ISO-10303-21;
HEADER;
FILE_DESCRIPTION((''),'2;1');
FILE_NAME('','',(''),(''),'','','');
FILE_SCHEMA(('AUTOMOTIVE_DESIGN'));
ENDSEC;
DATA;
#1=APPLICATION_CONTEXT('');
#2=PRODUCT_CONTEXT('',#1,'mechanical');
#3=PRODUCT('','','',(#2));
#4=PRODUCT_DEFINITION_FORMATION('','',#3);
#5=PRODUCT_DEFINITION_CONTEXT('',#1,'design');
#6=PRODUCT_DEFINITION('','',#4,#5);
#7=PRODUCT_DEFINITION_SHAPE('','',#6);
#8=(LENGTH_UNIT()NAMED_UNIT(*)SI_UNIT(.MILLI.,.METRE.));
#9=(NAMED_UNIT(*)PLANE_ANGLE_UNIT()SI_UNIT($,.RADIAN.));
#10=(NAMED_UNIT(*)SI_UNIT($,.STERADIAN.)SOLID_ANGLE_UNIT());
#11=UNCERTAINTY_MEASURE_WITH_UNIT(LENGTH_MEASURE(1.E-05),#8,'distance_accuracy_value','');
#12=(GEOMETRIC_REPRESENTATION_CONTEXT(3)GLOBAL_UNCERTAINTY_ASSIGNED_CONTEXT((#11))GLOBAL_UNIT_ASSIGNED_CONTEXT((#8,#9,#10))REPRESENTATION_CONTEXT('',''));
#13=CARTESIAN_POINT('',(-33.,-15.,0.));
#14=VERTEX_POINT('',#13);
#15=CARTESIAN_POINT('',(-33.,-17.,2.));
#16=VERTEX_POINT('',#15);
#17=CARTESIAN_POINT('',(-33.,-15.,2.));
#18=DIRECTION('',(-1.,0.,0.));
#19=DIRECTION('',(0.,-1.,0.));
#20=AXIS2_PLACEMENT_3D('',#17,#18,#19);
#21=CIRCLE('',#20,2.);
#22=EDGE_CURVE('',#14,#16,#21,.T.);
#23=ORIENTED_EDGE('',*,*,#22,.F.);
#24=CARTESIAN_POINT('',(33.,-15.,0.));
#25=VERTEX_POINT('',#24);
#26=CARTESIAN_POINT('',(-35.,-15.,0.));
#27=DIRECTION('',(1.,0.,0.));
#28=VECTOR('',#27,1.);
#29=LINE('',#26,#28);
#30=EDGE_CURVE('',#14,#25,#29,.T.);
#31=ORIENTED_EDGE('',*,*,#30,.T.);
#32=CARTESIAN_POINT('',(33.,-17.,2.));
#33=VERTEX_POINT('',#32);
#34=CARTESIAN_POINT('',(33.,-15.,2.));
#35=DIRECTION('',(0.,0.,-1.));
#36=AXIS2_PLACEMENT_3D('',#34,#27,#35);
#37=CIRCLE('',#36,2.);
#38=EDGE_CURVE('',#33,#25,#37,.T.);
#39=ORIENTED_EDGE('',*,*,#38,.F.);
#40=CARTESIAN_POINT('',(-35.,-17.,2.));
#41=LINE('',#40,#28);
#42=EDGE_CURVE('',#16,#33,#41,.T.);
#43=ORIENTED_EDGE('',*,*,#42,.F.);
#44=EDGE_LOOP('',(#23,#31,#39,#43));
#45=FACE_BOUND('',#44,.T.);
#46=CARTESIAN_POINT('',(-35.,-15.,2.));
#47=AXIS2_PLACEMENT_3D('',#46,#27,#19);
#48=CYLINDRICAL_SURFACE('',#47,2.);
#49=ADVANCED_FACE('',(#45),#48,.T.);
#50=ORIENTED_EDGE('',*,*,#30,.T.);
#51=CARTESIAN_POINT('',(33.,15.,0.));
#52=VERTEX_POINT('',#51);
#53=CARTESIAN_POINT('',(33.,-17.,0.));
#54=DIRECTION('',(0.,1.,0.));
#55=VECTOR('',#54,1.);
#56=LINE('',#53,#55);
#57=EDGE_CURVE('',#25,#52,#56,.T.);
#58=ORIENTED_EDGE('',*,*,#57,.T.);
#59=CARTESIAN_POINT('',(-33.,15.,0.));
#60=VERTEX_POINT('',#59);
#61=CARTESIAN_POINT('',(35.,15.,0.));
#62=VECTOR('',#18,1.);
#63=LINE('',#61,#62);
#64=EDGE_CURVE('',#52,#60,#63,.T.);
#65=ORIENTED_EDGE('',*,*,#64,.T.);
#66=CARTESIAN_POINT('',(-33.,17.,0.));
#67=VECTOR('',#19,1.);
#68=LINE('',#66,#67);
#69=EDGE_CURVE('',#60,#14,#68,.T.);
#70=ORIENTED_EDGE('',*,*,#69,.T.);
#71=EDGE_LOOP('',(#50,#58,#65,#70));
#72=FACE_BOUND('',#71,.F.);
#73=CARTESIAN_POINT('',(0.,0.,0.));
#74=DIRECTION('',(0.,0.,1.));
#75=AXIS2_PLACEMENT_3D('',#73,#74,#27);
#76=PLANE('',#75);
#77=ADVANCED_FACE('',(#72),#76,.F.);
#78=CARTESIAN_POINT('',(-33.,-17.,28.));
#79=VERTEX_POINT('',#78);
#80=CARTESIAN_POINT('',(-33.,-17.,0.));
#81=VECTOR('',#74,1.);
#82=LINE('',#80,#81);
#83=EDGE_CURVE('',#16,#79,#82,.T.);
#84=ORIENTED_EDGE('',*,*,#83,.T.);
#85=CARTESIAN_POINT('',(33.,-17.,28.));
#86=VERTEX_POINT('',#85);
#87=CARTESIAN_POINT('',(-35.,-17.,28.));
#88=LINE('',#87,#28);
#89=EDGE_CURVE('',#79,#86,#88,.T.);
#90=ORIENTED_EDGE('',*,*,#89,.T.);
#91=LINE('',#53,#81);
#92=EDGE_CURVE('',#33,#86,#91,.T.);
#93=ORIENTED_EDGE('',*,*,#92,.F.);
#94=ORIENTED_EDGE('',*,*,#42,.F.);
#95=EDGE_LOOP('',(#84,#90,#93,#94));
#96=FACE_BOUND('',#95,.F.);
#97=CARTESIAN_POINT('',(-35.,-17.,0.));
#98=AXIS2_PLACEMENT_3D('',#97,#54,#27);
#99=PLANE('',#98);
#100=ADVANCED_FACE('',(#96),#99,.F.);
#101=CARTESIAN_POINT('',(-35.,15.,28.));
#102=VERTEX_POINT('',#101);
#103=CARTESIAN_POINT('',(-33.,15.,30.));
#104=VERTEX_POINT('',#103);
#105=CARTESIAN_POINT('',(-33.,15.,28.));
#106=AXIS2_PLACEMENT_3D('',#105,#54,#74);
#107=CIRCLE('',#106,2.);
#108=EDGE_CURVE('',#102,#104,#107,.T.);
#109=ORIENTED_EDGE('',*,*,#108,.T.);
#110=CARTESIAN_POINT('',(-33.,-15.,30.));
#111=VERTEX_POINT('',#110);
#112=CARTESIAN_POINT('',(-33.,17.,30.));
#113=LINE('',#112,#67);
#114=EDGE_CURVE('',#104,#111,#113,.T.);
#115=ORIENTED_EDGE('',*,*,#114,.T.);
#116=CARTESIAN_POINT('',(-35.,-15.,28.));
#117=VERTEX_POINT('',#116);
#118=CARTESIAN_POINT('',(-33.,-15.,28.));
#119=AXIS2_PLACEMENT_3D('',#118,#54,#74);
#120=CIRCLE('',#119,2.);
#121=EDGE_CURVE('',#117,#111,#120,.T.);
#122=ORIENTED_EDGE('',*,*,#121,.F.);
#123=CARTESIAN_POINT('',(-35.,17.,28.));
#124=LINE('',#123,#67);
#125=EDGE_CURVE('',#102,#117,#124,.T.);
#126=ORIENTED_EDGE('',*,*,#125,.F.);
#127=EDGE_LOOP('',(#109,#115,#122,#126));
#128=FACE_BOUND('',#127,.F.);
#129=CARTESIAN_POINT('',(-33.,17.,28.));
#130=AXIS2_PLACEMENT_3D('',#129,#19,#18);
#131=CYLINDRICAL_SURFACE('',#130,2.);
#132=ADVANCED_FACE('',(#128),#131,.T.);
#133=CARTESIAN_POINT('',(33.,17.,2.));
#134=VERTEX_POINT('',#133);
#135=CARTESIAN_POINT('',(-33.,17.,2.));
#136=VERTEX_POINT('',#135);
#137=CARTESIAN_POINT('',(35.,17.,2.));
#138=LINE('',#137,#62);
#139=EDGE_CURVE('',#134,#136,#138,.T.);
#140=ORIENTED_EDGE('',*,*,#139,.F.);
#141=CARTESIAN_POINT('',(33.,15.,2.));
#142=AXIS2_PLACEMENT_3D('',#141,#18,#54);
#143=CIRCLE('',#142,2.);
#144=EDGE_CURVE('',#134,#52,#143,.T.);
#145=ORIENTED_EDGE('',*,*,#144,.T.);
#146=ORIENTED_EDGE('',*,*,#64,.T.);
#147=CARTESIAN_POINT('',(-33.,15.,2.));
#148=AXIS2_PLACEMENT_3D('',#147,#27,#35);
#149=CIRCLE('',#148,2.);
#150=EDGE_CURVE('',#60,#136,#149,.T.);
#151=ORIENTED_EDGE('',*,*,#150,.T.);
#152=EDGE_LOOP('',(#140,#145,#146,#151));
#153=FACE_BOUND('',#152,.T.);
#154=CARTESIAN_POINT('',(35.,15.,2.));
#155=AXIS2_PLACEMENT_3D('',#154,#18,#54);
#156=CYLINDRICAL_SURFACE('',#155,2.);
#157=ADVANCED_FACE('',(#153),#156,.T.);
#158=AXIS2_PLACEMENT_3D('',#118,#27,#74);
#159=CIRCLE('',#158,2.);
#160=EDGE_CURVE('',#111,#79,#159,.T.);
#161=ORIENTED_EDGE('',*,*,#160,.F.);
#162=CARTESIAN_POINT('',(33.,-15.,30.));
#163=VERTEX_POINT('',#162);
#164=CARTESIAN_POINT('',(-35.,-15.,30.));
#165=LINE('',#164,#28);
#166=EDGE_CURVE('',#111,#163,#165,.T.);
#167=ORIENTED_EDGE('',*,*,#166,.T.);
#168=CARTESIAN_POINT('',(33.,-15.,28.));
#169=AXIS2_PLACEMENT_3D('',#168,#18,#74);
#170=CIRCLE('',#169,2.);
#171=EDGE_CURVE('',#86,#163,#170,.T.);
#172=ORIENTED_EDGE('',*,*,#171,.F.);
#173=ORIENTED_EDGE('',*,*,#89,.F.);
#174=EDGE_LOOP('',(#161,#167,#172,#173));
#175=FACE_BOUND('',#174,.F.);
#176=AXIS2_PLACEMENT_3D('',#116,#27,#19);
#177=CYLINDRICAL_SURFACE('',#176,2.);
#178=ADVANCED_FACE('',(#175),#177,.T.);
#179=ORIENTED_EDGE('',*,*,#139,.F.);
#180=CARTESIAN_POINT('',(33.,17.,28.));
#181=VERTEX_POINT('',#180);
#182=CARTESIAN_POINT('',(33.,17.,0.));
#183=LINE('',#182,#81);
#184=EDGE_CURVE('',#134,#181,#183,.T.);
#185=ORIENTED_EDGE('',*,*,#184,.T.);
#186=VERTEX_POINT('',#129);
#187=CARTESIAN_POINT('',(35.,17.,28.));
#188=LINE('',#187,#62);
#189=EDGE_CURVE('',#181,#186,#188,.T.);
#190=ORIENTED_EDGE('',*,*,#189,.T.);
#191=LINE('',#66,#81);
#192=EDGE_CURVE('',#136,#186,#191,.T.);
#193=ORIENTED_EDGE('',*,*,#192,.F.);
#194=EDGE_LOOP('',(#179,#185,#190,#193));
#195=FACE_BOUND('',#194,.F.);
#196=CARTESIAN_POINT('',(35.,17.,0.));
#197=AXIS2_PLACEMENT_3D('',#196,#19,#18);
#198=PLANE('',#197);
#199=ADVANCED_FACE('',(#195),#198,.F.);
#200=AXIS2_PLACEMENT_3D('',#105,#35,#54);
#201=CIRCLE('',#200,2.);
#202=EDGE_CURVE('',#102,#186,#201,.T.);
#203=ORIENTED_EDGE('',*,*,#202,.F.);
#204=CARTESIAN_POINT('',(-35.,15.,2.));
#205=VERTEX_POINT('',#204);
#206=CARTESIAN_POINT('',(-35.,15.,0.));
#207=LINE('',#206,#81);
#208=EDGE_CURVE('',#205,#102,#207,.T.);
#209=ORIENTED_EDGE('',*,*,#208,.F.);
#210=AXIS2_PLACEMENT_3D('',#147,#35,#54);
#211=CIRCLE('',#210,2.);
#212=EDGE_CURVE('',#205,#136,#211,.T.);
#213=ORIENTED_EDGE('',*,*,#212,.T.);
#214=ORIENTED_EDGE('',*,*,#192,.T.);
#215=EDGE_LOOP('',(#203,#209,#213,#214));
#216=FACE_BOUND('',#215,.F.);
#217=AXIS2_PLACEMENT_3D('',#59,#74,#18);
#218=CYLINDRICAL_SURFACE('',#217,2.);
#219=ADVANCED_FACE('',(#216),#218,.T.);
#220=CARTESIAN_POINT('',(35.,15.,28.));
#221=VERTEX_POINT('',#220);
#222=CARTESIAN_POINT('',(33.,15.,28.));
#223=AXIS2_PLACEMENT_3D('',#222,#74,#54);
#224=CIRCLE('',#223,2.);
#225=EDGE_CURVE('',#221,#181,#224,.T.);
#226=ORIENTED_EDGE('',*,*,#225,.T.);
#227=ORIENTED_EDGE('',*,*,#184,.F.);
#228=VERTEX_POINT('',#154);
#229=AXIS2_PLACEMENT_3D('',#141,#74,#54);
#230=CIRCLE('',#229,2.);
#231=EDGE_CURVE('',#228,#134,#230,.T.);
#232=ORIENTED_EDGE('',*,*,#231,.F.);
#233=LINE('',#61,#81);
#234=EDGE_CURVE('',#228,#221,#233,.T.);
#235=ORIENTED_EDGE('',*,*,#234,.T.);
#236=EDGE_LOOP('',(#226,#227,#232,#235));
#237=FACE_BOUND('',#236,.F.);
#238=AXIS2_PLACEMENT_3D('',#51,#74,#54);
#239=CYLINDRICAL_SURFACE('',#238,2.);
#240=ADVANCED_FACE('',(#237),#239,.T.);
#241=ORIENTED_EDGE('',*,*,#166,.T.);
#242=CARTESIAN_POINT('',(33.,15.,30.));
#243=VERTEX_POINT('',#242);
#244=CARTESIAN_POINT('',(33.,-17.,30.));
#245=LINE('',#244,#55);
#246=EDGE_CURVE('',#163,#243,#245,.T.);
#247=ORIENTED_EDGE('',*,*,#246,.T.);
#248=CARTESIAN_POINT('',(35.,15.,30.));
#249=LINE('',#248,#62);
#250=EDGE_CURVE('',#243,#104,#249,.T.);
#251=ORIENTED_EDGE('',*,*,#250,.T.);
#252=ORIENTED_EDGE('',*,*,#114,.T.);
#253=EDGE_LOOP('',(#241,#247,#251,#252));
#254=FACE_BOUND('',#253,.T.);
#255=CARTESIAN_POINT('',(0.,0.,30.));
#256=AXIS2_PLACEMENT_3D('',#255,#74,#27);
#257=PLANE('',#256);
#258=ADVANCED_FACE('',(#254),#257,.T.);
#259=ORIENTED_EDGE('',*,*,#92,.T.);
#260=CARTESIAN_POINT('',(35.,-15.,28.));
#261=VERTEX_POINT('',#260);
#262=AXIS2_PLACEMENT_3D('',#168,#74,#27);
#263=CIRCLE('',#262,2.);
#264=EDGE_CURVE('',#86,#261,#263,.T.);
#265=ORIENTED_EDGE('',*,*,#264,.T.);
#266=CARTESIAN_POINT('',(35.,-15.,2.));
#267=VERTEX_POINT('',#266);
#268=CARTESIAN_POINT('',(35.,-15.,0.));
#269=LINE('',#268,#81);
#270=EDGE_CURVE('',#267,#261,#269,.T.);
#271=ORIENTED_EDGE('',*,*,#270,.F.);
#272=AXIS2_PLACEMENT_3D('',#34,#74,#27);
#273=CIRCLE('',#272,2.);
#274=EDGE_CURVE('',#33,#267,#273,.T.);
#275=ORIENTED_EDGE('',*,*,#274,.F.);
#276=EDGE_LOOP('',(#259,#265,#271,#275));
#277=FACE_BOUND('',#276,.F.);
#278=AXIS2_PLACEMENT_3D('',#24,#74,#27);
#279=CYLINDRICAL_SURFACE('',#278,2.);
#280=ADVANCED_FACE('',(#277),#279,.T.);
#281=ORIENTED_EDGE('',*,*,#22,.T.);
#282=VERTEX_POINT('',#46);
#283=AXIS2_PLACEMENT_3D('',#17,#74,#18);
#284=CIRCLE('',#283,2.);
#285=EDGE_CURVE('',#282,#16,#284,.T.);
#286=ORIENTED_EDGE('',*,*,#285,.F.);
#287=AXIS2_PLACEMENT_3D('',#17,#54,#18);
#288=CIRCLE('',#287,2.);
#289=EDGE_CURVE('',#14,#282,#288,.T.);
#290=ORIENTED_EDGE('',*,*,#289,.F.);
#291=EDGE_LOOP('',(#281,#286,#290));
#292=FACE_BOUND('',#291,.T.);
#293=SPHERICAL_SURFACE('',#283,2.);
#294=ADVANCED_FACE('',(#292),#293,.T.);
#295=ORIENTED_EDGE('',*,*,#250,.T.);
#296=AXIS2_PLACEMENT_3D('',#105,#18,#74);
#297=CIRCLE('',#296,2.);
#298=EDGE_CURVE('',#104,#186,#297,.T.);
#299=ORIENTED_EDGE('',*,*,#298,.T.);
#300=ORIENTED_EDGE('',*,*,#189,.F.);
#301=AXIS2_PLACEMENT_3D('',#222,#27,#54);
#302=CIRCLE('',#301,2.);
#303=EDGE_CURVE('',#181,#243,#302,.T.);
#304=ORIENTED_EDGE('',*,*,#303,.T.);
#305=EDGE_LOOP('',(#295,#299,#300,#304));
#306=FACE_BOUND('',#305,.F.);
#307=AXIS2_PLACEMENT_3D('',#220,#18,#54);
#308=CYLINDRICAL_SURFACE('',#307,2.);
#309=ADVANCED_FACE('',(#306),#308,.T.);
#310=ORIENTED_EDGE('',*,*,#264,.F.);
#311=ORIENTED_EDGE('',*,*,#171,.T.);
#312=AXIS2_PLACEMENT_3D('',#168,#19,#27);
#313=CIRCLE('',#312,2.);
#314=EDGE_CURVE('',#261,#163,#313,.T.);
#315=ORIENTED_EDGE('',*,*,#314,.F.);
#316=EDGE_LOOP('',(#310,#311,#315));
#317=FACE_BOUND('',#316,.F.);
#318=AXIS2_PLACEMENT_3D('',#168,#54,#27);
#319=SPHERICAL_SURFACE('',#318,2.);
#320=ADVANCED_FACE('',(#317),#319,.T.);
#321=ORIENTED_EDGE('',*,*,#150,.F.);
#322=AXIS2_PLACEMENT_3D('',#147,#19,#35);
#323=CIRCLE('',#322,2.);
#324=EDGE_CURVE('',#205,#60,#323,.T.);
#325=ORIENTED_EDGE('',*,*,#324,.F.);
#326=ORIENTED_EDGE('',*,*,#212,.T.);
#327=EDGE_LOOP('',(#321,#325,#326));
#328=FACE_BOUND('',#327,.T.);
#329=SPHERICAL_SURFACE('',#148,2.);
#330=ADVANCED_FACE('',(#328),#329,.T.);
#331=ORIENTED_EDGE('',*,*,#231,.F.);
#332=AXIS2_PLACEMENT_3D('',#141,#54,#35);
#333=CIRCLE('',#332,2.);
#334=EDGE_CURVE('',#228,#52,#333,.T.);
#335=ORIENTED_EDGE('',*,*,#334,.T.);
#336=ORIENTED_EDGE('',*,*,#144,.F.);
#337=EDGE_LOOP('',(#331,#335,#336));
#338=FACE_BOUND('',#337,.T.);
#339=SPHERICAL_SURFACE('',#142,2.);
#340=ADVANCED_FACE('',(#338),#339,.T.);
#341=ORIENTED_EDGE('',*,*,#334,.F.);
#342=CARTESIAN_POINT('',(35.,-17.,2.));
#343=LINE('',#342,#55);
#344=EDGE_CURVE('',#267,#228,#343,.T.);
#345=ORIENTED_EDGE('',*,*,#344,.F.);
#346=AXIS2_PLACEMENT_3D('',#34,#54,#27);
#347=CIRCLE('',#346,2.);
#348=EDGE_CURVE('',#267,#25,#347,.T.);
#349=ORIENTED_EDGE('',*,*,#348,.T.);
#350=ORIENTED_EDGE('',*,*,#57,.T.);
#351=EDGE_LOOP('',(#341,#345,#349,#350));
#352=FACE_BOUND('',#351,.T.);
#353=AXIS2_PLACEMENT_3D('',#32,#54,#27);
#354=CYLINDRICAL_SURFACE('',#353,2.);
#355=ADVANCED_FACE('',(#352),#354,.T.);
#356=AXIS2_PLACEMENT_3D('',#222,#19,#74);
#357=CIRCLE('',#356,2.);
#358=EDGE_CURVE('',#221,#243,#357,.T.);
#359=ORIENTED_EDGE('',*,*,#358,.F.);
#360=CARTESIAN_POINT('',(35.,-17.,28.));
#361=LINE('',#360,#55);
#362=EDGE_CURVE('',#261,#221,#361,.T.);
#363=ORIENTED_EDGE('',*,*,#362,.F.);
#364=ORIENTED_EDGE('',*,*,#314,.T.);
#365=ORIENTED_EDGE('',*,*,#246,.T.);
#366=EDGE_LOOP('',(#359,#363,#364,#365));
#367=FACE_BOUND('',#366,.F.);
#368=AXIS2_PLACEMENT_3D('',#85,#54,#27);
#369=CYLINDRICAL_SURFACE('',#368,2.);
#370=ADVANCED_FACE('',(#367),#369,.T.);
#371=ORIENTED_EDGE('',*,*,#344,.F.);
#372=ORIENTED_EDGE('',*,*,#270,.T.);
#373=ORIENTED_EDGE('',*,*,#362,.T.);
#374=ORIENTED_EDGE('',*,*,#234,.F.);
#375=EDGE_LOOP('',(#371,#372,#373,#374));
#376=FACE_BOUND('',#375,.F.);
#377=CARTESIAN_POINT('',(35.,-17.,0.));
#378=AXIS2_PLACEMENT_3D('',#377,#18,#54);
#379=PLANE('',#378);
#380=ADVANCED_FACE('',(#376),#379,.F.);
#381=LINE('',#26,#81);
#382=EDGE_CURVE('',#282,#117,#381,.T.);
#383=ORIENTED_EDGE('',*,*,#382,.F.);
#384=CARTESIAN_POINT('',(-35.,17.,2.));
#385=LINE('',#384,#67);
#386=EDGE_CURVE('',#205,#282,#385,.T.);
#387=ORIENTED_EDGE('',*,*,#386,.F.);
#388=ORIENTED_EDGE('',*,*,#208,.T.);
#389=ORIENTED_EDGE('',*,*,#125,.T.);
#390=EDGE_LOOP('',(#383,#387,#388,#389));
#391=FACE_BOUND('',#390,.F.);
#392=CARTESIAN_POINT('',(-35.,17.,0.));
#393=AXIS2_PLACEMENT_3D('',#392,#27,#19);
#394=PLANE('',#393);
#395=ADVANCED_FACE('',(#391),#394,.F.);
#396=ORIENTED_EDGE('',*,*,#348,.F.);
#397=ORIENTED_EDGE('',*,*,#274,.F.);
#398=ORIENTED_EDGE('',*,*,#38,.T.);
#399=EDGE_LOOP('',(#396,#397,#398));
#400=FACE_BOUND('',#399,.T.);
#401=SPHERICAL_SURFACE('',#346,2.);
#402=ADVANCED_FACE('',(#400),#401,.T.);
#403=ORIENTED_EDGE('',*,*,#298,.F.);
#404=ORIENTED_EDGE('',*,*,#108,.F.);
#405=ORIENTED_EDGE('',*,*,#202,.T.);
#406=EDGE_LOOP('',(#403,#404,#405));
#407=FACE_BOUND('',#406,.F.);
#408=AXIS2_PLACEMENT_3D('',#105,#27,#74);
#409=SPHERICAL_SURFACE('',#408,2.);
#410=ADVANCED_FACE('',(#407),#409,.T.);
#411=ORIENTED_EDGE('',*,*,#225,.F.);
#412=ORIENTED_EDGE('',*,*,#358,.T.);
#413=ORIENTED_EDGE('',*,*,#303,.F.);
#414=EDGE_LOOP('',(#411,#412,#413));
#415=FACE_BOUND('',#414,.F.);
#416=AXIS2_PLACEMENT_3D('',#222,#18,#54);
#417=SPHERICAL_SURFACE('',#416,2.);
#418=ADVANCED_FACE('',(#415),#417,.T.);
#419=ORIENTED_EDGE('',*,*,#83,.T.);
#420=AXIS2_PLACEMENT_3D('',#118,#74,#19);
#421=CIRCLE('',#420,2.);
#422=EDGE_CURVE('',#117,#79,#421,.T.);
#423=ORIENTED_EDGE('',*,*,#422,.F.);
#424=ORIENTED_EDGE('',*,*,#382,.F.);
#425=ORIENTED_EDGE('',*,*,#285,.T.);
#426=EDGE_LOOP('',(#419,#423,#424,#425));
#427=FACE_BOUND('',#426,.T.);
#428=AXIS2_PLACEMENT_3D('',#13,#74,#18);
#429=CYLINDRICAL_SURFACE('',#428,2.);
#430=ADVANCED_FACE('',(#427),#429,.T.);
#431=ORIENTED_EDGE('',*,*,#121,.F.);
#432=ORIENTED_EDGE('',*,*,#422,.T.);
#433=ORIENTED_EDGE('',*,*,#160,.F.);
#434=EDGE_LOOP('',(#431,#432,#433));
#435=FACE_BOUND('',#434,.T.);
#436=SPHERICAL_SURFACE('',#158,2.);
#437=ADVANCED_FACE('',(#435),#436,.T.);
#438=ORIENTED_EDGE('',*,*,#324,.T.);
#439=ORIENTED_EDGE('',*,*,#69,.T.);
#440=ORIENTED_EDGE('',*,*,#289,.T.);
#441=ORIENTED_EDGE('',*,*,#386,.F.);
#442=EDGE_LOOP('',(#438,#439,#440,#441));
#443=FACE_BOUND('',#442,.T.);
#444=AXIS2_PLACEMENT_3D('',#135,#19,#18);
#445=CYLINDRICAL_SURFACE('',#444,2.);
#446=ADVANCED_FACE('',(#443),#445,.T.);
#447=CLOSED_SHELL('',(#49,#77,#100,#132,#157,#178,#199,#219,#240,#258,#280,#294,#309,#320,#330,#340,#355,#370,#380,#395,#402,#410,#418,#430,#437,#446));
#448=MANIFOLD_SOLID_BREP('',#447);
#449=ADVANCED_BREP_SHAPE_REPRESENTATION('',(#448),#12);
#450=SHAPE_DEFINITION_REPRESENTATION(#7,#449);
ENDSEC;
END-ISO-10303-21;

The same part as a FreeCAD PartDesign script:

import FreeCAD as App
import Part
import Sketcher
from FreeCAD import Vector
Q = App.Units.Quantity


def add_polygon(sketch, points):
    """Adds a closed chain of lines whose ends are joined by coincident constraints."""
    first, n = sketch.GeometryCount, len(points)
    for a, b in zip(points, points[1:] + points[:1]):
        sketch.addGeometry(Part.LineSegment(App.Vector(*a, 0), App.Vector(*b, 0)), False)
    for i in range(n):
        sketch.addConstraint(Sketcher.Constraint("Coincident", first + i, 2, first + (i + 1) % n, 1))

doc = App.newDocument("Part")
body = doc.addObject("PartDesign::Body", "Body")

sketch1 = doc.addObject("Sketcher::SketchObject", "Sketch")
body.addObject(sketch1)
sketch1.AttachmentSupport = (doc.XY_Plane, [""])
sketch1.MapMode = "FlatFace"
add_polygon(sketch1, [(-35, 17), (-35, -17), (35, -17), (35, 17)])
sketch1.addConstraint(Sketcher.Constraint("Vertical", 0))
sketch1.addConstraint(Sketcher.Constraint("Horizontal", 1))
sketch1.addConstraint(Sketcher.Constraint("Vertical", 2))
sketch1.addConstraint(Sketcher.Constraint("Horizontal", 3))
sketch1.addConstraint(Sketcher.Constraint("Symmetric", 0, 2, 2, 2, -1, 1))
sketch1.addConstraint(Sketcher.Constraint("DistanceX", 1, 1, 1, 2, Q("70 mm")))
sketch1.addConstraint(Sketcher.Constraint("DistanceY", 0, 2, 0, 1, Q("34 mm")))
pad1 = doc.addObject("PartDesign::Pad", "Pad")
body.addObject(pad1)
pad1.Profile = sketch1
pad1.Length = 30
doc.recompute()

fillet = doc.addObject("PartDesign::Fillet", "Fillet")
body.addObject(fillet)
fillet.Base = (pad1, ["Edge1"])
fillet.UseAllEdges = True
fillet.Radius = 2

doc.recompute()
